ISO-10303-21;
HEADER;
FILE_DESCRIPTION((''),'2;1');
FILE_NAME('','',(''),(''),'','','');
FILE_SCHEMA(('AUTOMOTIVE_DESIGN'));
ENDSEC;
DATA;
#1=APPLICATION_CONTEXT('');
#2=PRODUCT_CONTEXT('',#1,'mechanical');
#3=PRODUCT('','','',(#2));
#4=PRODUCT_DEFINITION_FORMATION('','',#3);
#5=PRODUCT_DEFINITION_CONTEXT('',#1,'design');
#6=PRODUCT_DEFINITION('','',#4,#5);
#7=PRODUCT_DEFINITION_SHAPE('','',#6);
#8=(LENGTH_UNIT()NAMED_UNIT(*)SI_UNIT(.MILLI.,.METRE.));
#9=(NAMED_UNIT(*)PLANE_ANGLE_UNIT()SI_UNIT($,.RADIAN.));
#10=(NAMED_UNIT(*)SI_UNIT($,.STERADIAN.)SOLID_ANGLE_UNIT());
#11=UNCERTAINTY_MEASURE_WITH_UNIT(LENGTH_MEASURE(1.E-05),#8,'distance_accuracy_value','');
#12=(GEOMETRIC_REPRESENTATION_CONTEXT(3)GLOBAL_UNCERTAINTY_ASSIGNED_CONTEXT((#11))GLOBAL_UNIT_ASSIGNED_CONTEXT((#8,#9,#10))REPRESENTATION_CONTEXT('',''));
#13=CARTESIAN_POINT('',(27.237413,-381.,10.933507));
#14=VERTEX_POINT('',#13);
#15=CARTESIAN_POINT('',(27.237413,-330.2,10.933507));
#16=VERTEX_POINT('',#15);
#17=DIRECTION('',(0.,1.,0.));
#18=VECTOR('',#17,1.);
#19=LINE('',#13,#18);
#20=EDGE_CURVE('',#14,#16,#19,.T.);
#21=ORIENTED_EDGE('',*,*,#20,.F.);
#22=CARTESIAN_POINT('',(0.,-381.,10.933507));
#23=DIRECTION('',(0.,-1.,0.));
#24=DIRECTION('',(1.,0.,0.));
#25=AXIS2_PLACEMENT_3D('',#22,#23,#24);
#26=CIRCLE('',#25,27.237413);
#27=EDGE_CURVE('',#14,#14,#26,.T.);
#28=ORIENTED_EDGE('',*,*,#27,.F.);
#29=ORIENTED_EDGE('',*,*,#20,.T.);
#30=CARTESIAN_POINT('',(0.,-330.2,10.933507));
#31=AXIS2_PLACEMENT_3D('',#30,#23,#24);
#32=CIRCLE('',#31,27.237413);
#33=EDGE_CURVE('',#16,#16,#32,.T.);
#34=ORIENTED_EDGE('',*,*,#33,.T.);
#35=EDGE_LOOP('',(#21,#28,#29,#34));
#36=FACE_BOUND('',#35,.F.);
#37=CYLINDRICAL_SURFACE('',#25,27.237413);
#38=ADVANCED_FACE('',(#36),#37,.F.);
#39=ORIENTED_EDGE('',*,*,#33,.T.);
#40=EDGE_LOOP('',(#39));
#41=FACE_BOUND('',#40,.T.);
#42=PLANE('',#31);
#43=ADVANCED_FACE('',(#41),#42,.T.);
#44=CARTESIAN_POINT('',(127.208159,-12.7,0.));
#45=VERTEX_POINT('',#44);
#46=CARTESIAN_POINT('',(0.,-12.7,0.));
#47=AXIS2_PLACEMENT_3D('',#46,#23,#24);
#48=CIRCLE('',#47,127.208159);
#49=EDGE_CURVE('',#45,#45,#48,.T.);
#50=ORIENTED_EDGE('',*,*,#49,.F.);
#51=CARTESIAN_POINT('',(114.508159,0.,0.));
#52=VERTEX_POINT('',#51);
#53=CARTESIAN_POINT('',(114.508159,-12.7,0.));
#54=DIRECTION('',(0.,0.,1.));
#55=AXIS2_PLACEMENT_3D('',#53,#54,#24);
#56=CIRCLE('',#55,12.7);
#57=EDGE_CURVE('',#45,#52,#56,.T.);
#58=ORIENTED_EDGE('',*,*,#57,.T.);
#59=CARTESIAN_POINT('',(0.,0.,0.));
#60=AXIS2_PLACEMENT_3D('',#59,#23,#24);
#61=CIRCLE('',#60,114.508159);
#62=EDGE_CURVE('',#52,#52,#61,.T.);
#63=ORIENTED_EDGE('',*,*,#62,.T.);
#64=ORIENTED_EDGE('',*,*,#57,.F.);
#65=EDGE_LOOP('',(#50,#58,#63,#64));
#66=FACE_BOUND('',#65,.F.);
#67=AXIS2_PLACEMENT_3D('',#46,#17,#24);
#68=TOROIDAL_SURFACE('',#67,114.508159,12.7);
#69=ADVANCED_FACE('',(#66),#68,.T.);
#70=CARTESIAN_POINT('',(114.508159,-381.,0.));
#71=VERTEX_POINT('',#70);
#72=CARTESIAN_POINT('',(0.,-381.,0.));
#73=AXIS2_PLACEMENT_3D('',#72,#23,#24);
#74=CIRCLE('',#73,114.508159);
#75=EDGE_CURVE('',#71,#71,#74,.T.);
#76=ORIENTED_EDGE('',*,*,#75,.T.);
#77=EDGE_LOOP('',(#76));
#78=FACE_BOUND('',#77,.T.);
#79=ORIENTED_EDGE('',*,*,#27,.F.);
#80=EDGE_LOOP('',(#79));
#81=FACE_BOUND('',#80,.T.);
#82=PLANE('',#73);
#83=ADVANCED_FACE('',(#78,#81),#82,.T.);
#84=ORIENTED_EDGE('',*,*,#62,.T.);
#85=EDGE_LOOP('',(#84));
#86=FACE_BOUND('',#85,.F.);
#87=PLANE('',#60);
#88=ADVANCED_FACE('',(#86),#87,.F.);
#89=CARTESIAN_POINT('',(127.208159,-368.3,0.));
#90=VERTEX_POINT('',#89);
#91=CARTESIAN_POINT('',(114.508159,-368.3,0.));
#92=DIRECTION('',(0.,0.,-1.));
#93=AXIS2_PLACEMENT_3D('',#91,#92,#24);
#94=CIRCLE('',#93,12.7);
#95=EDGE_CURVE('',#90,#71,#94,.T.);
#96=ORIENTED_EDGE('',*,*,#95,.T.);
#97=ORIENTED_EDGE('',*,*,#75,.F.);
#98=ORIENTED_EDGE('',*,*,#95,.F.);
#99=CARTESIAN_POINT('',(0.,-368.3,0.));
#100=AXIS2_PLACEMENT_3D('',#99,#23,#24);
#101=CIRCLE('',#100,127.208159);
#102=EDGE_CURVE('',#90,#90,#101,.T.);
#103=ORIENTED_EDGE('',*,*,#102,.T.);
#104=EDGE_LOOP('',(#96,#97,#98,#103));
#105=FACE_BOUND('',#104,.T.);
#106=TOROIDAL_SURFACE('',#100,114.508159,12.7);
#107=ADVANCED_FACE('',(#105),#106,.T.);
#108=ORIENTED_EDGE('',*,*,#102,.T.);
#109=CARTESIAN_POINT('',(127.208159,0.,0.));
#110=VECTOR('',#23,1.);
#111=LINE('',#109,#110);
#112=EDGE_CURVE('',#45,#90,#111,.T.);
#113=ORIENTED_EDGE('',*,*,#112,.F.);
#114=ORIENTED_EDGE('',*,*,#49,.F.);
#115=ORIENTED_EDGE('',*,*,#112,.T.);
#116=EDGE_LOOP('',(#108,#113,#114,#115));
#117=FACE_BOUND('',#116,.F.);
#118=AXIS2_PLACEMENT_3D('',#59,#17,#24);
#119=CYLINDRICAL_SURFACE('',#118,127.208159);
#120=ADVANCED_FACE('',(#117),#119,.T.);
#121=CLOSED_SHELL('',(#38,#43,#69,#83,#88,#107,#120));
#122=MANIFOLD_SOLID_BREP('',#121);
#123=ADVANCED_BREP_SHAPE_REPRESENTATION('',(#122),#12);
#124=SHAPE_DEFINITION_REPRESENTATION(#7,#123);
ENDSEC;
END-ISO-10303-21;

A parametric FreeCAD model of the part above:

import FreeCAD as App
import Part
import Sketcher

V = App.Vector
Q = App.Units.Quantity


def edges_at(feature, points):
    """Names of the edges that pass closest to the given points."""
    edges = feature.Shape.Edges
    near = lambda p: min(range(len(edges)), key=lambda i: edges[i].distToShape(Part.Vertex(*p))[0])
    return sorted({f"Edge{near(p) + 1}" for p in points})

doc = App.newDocument("Part")
body = doc.addObject("PartDesign::Body", "Body")

# Sketch on XZ plane
sketch1 = doc.addObject("Sketcher::SketchObject", "Sketch")
body.addObject(sketch1)
sketch1.AttachmentSupport = (doc.XZ_Plane, [""])
sketch1.MapMode = "FlatFace"
sketch1.addGeometry(Part.Circle(V(0, 0, 0), V(0, 0, 1), 127), False)
sketch1.addConstraint([
    Sketcher.Constraint("Coincident", 0, 3, -1, 1),
    Sketcher.Constraint("Diameter", 0, 254.416318),
])
pad1 = doc.addObject("PartDesign::Pad", "Pad")
body.addObject(pad1)
pad1.Profile = sketch1
pad1.Length = Q("15 in")

# Sketch on XZ plane
sketch2 = doc.addObject("Sketcher::SketchObject", "Sketch001")
body.addObject(sketch2)
sketch2.AttachmentSupport = (doc.XZ_Plane, [""])
sketch2.MapMode = "FlatFace"
sketch2.AttachmentOffset = App.Placement(V(0, 0, 15 * 25.4), App.Rotation())
sketch2.addGeometry(Part.Circle(V(0, 11, 0), V(0, 0, 1), 27), False)
sketch2.addConstraint([
    Sketcher.Constraint("PointOnObject", 0, 3, -2),
    Sketcher.Constraint("Diameter", 0, 54.474826),
    Sketcher.Constraint("DistanceY", -1, 1, 0, 3, 10.933507),
])
pocket1 = doc.addObject("PartDesign::Pocket", "Pocket")
body.addObject(pocket1)
pocket1.Profile = sketch2
pocket1.Length = Q("2 in")
doc.recompute()

fillet = doc.addObject("PartDesign::Fillet", "Fillet")
body.addObject(fillet)
fillet.Base = (pocket1, edges_at(pocket1, [(-127.208, -381, 0)]))
fillet.Radius = Q("0.5 in")
doc.recompute()

fillet2 = doc.addObject("PartDesign::Fillet", "Fillet001")
body.addObject(fillet2)
fillet2.Base = (fillet, edges_at(fillet, [(-127.208, 0, 0)]))
fillet2.Radius = Q("0.5 in")

doc.recompute()
